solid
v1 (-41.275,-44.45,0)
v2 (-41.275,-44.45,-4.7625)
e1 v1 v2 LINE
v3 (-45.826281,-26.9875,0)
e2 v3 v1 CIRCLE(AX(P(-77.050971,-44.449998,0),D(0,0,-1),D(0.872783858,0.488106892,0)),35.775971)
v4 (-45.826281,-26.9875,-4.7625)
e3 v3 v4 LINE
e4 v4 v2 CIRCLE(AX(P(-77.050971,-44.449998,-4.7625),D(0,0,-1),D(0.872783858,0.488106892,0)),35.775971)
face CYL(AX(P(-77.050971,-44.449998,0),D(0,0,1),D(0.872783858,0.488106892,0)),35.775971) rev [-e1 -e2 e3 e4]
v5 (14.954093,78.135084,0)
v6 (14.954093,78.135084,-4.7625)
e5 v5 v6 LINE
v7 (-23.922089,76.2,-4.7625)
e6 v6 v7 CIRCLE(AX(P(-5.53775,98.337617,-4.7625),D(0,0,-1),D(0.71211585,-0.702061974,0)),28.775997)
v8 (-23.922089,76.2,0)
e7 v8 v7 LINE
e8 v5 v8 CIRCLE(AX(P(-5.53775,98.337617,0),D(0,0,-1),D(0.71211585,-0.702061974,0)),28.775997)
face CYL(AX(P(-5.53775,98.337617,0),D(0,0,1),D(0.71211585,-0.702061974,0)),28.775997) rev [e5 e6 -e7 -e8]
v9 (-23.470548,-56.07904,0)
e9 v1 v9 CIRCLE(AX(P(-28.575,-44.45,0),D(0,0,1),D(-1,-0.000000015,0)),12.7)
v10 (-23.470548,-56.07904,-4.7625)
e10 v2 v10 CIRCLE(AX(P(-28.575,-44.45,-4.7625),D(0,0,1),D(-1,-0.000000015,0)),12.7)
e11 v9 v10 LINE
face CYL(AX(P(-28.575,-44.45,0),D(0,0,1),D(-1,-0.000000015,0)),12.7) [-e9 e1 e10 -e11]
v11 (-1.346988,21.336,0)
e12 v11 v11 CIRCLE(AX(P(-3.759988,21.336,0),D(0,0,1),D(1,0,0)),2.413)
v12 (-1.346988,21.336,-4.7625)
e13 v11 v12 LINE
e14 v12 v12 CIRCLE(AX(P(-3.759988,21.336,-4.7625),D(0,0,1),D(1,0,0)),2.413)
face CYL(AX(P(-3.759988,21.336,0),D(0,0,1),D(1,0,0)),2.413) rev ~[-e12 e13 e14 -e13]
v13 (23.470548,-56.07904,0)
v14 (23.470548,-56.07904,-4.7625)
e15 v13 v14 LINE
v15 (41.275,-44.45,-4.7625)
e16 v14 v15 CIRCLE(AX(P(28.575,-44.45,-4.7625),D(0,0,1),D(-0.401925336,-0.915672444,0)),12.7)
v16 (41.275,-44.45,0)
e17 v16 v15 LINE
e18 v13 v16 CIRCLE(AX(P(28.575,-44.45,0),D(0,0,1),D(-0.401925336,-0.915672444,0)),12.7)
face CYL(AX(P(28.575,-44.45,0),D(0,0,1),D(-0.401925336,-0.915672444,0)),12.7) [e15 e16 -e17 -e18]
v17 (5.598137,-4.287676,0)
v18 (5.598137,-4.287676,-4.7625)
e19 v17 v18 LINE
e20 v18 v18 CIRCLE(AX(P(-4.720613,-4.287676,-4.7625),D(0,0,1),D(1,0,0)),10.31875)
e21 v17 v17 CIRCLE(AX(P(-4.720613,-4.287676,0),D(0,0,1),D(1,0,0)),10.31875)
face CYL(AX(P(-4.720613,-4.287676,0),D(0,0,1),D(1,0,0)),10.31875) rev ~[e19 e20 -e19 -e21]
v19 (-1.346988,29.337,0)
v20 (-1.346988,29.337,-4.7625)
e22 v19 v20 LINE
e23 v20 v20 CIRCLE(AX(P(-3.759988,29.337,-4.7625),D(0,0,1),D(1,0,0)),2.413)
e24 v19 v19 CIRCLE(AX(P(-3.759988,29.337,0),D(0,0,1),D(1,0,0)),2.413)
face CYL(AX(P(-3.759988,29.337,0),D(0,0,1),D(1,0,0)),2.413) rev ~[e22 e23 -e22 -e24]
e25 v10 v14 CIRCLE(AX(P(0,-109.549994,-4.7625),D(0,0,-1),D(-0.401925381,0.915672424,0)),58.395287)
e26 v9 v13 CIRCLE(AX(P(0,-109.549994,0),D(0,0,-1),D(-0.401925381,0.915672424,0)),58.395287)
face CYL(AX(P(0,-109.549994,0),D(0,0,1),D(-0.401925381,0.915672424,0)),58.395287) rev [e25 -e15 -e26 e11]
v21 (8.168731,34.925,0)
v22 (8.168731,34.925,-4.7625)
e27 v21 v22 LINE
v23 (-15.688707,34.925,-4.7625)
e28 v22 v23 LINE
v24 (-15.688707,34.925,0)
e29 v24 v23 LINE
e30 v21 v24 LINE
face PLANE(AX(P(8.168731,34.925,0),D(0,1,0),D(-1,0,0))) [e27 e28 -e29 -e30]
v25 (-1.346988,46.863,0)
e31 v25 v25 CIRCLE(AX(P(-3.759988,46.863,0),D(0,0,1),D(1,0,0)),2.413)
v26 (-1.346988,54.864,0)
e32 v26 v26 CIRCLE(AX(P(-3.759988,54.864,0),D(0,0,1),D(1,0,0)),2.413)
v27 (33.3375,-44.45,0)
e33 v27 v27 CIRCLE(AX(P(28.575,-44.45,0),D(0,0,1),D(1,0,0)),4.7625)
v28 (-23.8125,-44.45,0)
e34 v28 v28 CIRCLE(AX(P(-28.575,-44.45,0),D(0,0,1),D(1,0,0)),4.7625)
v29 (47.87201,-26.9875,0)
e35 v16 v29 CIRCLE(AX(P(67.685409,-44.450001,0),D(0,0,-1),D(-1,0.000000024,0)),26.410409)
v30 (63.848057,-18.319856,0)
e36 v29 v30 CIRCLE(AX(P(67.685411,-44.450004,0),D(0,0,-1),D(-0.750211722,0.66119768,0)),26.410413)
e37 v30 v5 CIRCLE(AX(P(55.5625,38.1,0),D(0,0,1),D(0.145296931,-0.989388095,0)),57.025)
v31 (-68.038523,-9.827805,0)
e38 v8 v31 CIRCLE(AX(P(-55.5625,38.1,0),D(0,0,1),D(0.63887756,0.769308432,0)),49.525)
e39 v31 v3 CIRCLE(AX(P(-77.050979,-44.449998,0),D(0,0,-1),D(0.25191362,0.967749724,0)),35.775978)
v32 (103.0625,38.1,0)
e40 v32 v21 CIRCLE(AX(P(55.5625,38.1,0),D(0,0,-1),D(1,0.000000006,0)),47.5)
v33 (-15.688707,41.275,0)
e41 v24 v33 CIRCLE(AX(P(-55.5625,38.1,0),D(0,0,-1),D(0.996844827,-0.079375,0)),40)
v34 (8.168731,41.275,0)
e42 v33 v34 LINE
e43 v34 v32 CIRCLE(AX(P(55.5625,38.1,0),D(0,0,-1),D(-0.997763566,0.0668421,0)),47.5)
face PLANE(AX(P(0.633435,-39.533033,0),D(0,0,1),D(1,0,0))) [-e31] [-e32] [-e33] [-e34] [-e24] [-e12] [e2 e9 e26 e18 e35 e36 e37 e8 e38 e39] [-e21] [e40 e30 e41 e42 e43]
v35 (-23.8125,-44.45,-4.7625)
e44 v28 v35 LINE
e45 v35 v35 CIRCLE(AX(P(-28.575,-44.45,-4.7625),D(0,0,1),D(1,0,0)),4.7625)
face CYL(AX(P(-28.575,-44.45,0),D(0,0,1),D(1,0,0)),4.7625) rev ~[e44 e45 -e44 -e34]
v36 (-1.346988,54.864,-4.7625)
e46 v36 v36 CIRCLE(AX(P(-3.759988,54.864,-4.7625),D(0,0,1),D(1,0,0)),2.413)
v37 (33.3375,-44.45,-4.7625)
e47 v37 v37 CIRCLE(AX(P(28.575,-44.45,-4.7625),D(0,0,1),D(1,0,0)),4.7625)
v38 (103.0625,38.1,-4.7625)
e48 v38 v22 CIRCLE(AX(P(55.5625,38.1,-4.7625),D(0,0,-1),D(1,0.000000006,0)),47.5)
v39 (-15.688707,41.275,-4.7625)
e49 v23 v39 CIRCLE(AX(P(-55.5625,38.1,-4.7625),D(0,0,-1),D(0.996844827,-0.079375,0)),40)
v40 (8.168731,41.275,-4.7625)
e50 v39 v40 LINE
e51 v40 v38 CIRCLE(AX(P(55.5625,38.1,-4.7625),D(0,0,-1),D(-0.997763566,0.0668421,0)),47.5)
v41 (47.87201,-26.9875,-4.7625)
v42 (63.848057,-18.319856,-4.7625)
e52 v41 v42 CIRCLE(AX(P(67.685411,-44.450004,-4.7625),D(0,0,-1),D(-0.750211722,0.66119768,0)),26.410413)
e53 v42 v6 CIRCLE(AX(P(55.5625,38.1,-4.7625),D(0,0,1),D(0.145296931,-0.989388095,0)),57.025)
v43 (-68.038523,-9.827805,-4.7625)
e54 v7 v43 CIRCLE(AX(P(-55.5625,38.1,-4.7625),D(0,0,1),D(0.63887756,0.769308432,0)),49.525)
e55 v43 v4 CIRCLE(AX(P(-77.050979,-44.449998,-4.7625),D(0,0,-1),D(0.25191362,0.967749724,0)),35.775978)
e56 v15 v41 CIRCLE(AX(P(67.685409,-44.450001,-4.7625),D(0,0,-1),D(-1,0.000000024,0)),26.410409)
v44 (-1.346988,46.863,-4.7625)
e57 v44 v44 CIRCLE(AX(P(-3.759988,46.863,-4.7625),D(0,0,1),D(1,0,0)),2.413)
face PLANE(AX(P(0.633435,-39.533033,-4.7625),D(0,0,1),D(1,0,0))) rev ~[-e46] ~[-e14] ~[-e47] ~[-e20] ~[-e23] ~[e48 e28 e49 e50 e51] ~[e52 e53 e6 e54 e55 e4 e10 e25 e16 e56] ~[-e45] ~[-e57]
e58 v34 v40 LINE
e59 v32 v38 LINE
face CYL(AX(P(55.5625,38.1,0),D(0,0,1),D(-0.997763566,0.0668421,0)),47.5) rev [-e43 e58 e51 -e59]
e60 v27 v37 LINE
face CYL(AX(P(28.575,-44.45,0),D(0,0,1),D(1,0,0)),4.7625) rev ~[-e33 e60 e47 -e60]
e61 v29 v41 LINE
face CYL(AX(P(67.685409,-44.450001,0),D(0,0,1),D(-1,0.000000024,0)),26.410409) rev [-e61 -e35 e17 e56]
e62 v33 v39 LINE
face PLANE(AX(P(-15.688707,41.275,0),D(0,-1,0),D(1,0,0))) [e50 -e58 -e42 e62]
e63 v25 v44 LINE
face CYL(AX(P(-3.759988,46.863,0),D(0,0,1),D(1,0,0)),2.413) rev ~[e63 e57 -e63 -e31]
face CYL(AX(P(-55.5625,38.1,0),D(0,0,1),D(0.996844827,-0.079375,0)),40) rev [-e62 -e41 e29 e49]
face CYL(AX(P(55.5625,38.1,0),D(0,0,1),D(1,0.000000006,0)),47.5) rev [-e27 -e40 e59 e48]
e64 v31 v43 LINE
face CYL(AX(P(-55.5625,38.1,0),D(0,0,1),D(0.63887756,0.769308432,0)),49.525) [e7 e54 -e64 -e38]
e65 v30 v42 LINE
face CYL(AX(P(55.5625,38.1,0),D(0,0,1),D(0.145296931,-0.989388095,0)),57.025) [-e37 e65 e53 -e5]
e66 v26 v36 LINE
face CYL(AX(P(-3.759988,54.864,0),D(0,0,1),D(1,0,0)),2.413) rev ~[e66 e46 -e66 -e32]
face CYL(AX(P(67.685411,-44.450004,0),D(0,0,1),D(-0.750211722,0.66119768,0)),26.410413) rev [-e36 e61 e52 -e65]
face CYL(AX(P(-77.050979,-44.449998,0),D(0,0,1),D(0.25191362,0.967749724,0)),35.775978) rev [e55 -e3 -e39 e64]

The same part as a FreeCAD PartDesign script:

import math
import FreeCAD as App
import Part
import Sketcher
Q = App.Units.Quantity

doc = App.newDocument("Part")
params = doc.addObject("Spreadsheet::Sheet", "Params")
for row, (alias, value) in enumerate([
    ("sketch1_radius", "0.5 in"),
    ("sketch1_diameter", "0.19 in"),
    ("sketch1_diameter2", "0.375 in"),
    ("sketch1_diameter3", "0.8125 in"),
    ("pad1_length", "0.1875 in"),
], start=1):
    params.set(f"A{row}", alias)
    params.set(f"B{row}", "=" + value)
    params.setAlias(f"B{row}", alias)

body = doc.addObject("PartDesign::Body", "Body")

sketch1 = body.newObject("Sketcher::SketchObject", "Sketch")
sketch1.AttachmentSupport = (doc.getObject("XY_Plane"), [""])
sketch1.MapMode = "FlatFace"
sketch1.addGeometry([
    Part.ArcOfCircle(Part.Circle(App.Vector(67.685409, -44.450001, 0), App.Vector(0, 0, 1), 26.410409), math.radians(138.608723), math.radians(179.999999)),
    Part.ArcOfCircle(Part.Circle(App.Vector(67.685411, -44.450004, 0), App.Vector(0, 0, 1), 26.410413), math.radians(98.354479), math.radians(138.608721)),
    Part.ArcOfCircle(Part.Circle(App.Vector(55.5625, 38.1, 0), App.Vector(0, 0, 1), 57.025), math.radians(-81.645526), math.radians(135.407329)),
    Part.ArcOfCircle(Part.Circle(App.Vector(-5.53775, 98.337617, 0), App.Vector(0, 0, 1), 28.775997), math.radians(-129.708172), math.radians(-44.592671)),
    Part.ArcOfCircle(Part.Circle(App.Vector(-55.5625, 38.1, 0), App.Vector(0, 0, 1), 49.525), math.radians(50.291827), math.radians(255.40922)),
    Part.ArcOfCircle(Part.Circle(App.Vector(-77.050979, -44.449998, 0), App.Vector(0, 0, 1), 35.775978), math.radians(29.216222), math.radians(75.409221)),
    Part.ArcOfCircle(Part.Circle(App.Vector(-77.050971, -44.449998, 0), App.Vector(0, 0, 1), 35.775971), math.radians(-0.000003), math.radians(29.216229)),
    Part.ArcOfCircle(Part.Circle(App.Vector(-28.575, -44.45, 0), App.Vector(0, 0, 1), 12.7), math.radians(-179.999999), math.radians(-66.301404)),
    Part.ArcOfCircle(Part.Circle(App.Vector(0, -109.549994, 0), App.Vector(0, 0, 1), 58.395287), math.radians(66.301401), math.radians(113.698599)),
    Part.ArcOfCircle(Part.Circle(App.Vector(28.575, -44.45, 0), App.Vector(0, 0, 1), 12.7), math.radians(-113.698596), math.radians(-0.000001)),
    Part.Circle(App.Vector(-28.575, -44.45, 0), App.Vector(0, 0, 1), 4.7625),
    Part.Circle(App.Vector(-4.720613, -4.287676, 0), App.Vector(0, 0, 1), 10.31875),
    Part.Circle(App.Vector(28.575, -44.45, 0), App.Vector(0, 0, 1), 4.7625),
    Part.Circle(App.Vector(-3.759988, 21.336, 0), App.Vector(0, 0, 1), 2.413),
    Part.Circle(App.Vector(-3.759988, 29.337, 0), App.Vector(0, 0, 1), 2.413),
    Part.Circle(App.Vector(-3.759988, 46.863, 0), App.Vector(0, 0, 1), 2.413),
    Part.Circle(App.Vector(-3.759988, 54.864, 0), App.Vector(0, 0, 1), 2.413),
    Part.LineSegment(App.Vector(8.168731, 34.925, 0), App.Vector(-15.688707, 34.925, 0)),
    Part.ArcOfCircle(Part.Circle(App.Vector(-55.5625, 38.1, 0), App.Vector(0, 0, 1), 40), math.radians(4.552642), math.radians(355.447358)),
    Part.LineSegment(App.Vector(-15.688707, 41.275, 0), App.Vector(8.168731, 41.275, 0)),
    Part.ArcOfCircle(Part.Circle(App.Vector(55.5625, 38.1, 0), App.Vector(0, 0, 1), 47.5), math.radians(0), math.radians(176.167372)),
    Part.ArcOfCircle(Part.Circle(App.Vector(55.5625, 38.1, 0), App.Vector(0, 0, 1), 47.5), math.radians(-176.167372), math.radians(0)),
], False)
sketch1.addConstraint([
    Sketcher.Constraint("Tangent", 0, 1, 1, 2),
    Sketcher.Constraint("Tangent", 1, 1, 2, 1),
    Sketcher.Constraint("Tangent", 2, 2, 3, 2),
    Sketcher.Constraint("Tangent", 3, 1, 4, 1),
    Sketcher.Constraint("Tangent", 4, 2, 5, 2),
    Sketcher.Constraint("Tangent", 5, 1, 6, 2),
    Sketcher.Constraint("Tangent", 6, 1, 7, 1),
    Sketcher.Constraint("Tangent", 7, 2, 8, 2),
    Sketcher.Constraint("Tangent", 8, 1, 9, 1),
    Sketcher.Constraint("Tangent", 9, 2, 0, 2),
    Sketcher.Constraint("Coincident", 17, 2, 18, 2),
    Sketcher.Constraint("Coincident", 18, 1, 19, 1),
    Sketcher.Constraint("Coincident", 19, 2, 20, 2),
    Sketcher.Constraint("Tangent", 20, 1, 21, 2),
    Sketcher.Constraint("Coincident", 21, 1, 17, 1),
    Sketcher.Constraint("Horizontal", 17),
    Sketcher.Constraint("Horizontal", 19),
    Sketcher.Constraint("Coincident", 10, 3, 7, 3),
    Sketcher.Constraint("Coincident", 12, 3, 9, 3),
    Sketcher.Constraint("Coincident", 18, 3, 4, 3),
    Sketcher.Constraint("Coincident", 20, 3, 2, 3),
    Sketcher.Constraint("Equal", 7, 9),
    Sketcher.Constraint("Equal", 10, 12),
    Sketcher.Constraint("Equal", 13, 14),
    Sketcher.Constraint("Equal", 14, 15),
    Sketcher.Constraint("Equal", 15, 16),
    Sketcher.Constraint("Equal", 20, 21),
    Sketcher.Constraint("Symmetric", 2, 3, 4, 3, -2),
    Sketcher.Constraint("Symmetric", 7, 3, 9, 3, -2),
    Sketcher.Constraint("Horizontal", 6, 3, 7, 3),
    Sketcher.Constraint("Horizontal", 0, 1, 5, 1),
    Sketcher.Constraint("Horizontal", 6, 1, 9, 2),
    Sketcher.Constraint("Horizontal", 21, 3, 20, 1),
    Sketcher.Constraint("Vertical", 13, 3, 14, 3),
    Sketcher.Constraint("Vertical", 14, 3, 15, 3),
    Sketcher.Constraint("Vertical", 15, 3, 16, 3),
    Sketcher.Constraint("Vertical", 17, 2, 18, 1),
    Sketcher.Constraint("Radius", 7, Q("0.5 in")),
    Sketcher.Constraint("Diameter", 13, Q("0.19 in")),
    Sketcher.Constraint("Diameter", 10, Q("0.375 in")),
    Sketcher.Constraint("Diameter", 11, Q("0.8125 in")),
    Sketcher.Constraint("DistanceY", -1, 1, 3, 1, Q("3 in")),
    Sketcher.Constraint("DistanceY", -1, 1, 2, 3, Q("1.5 in")),
    Sketcher.Constraint("DistanceY", 0, 3, -1, 1, Q("1.75 in")),
    Sketcher.Constraint("DistanceY", 1, 3, -1, 1, Q("1.7500001 in")),
    Sketcher.Constraint("DistanceY", 5, 3, -1, 1, Q("1.7499999 in")),
    Sketcher.Constraint("DistanceY", -1, 1, 13, 3, Q("0.84 in")),
    Sketcher.Constraint("DistanceY", -1, 1, 16, 3, Q("2.16 in")),
    Sketcher.Constraint("Radius", 2, Q("57.025 mm")),
    Sketcher.Constraint("Radius", 4, Q("49.525 mm")),
    Sketcher.Constraint("Radius", 18, Q("40 mm")),
    Sketcher.Constraint("Radius", 20, Q("47.5 mm")),
    Sketcher.Constraint("DistanceX", 7, 3, 9, 3, Q("2.25 in")),
    Sketcher.Constraint("DistanceY", 14, 3, 15, 3, Q("0.69 in")),
    Sketcher.Constraint("DistanceY", 14, 3, 17, 2, Q("0.22 in")),
    Sketcher.Constraint("DistanceY", 17, 2, 18, 1, Q("0.25 in")),
    Sketcher.Constraint("DistanceX", -1, 1, 2, 3, Q("2.1875 in")),
    Sketcher.Constraint("DistanceY", 0, 1, -1, 1, Q("1.0625 in")),
    Sketcher.Constraint("Radius", 8, Q("58.395287 mm")),
    Sketcher.Constraint("DistanceX", 3, 1, 16, 3, Q("20.162101 mm")),
    Sketcher.Constraint("DistanceX", 11, 3, -1, 1, Q("4.720613 mm")),
    Sketcher.Constraint("DistanceY", 11, 3, -1, 1, Q("4.287676 mm")),
])
sketch1.setExpression("Constraints[37]", "Params.sketch1_radius")
sketch1.setExpression("Constraints[38]", "Params.sketch1_diameter")
sketch1.setExpression("Constraints[39]", "Params.sketch1_diameter2")
sketch1.setExpression("Constraints[40]", "Params.sketch1_diameter3")
pad1 = body.newObject("PartDesign::Pad", "Pad")
pad1.Profile = sketch1
pad1.setExpression("Length", "Params.pad1_length")
pad1.Reversed = True

doc.recompute()
